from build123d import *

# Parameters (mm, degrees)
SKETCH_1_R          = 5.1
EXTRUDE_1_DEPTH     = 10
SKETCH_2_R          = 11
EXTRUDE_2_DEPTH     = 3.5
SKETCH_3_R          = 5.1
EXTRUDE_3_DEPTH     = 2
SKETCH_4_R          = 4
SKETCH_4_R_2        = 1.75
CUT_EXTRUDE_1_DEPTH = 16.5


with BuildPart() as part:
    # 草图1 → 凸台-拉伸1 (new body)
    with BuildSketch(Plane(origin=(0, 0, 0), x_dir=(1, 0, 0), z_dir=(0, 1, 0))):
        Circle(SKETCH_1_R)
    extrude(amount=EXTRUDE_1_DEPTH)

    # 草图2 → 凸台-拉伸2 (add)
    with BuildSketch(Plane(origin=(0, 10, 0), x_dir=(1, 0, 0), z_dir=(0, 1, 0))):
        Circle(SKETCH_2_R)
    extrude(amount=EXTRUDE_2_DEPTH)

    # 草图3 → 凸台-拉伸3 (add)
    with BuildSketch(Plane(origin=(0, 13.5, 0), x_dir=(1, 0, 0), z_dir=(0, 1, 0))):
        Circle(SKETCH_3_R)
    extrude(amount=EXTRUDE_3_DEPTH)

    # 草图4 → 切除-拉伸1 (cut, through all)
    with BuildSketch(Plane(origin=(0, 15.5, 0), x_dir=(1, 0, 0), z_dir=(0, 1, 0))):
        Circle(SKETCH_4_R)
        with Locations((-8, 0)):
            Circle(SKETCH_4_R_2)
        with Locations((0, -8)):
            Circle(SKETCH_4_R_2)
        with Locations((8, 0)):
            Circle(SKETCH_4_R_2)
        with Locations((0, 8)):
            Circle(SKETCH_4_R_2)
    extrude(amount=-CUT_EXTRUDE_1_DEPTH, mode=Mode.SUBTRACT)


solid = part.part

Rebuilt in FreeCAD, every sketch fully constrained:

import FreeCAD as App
import Part
import Sketcher

doc = App.newDocument("Part")
body = doc.addObject("PartDesign::Body", "Body")

# Sketch on XZ plane
sketch1 = body.newObject("Sketcher::SketchObject", "Sketch")
sketch1.AttachmentSupport = (doc.getObject("XZ_Plane"), [""])
sketch1.MapMode = "FlatFace"
sketch1.addGeometry(Part.Circle(App.Vector(0, 0, 0), App.Vector(0, 0, 1), 5), False)
sketch1.addConstraint(Sketcher.Constraint("Coincident", 0, 3, -1, 1))
sketch1.addConstraint(Sketcher.Constraint("Diameter", 0, 10.2))
pad1 = body.newObject("PartDesign::Pad", "Pad")
pad1.Profile = sketch1
pad1.Length = 10
pad1.Reversed = True

# Sketch on XZ plane
sketch2 = body.newObject("Sketcher::SketchObject", "Sketch001")
sketch2.AttachmentSupport = (doc.getObject("XZ_Plane"), [""])
sketch2.MapMode = "FlatFace"
sketch2.AttachmentOffset = App.Placement(App.Vector(0, 0, -10), App.Rotation())
sketch2.addGeometry(Part.Circle(App.Vector(0, 0, 0), App.Vector(0, 0, 1), 11), False)
sketch2.addConstraint(Sketcher.Constraint("Coincident", 0, 3, -1, 1))
sketch2.addConstraint(Sketcher.Constraint("Diameter", 0, 22.0))
pad2 = body.newObject("PartDesign::Pad", "Pad001")
pad2.Profile = sketch2
pad2.Length = 3.5
pad2.Reversed = True

# Sketch on XZ plane
sketch3 = body.newObject("Sketcher::SketchObject", "Sketch002")
sketch3.AttachmentSupport = (doc.getObject("XZ_Plane"), [""])
sketch3.MapMode = "FlatFace"
sketch3.AttachmentOffset = App.Placement(App.Vector(0, 0, -13.5), App.Rotation())
sketch3.addGeometry(Part.Circle(App.Vector(0, 0, 0), App.Vector(0, 0, 1), 5), False)
sketch3.addConstraint(Sketcher.Constraint("Coincident", 0, 3, -1, 1))
sketch3.addConstraint(Sketcher.Constraint("Diameter", 0, 10.2))
pad3 = body.newObject("PartDesign::Pad", "Pad002")
pad3.Profile = sketch3
pad3.Length = 2
pad3.Reversed = True

# Sketch on XZ plane
sketch4 = body.newObject("Sketcher::SketchObject", "Sketch003")
sketch4.AttachmentSupport = (doc.getObject("XZ_Plane"), [""])
sketch4.MapMode = "FlatFace"
sketch4.AttachmentOffset = App.Placement(App.Vector(0, 0, -15.5), App.Rotation())
sketch4.addGeometry(Part.Circle(App.Vector(0, 0, 0), App.Vector(0, 0, 1), 4), False)
sketch4.addGeometry(Part.Circle(App.Vector(-8, 0, 0), App.Vector(0, 0, 1), 1.8), False)
sketch4.addGeometry(Part.Circle(App.Vector(0, 8, 0), App.Vector(0, 0, 1), 1.8), False)
sketch4.addGeometry(Part.Circle(App.Vector(8, 0, 0), App.Vector(0, 0, 1), 1.8), False)
sketch4.addGeometry(Part.Circle(App.Vector(0, -8, 0), App.Vector(0, 0, 1), 1.8), False)
sketch4.addConstraint(Sketcher.Constraint("Coincident", 0, 3, -1, 1))
sketch4.addConstraint(Sketcher.Constraint("Equal", 1, 2))
sketch4.addConstraint(Sketcher.Constraint("Equal", 2, 3))
sketch4.addConstraint(Sketcher.Constraint("Equal", 3, 4))
sketch4.addConstraint(Sketcher.Constraint("Symmetric", 1, 3, 3, 3, -1, 1))
sketch4.addConstraint(Sketcher.Constraint("Symmetric", 2, 3, 4, 3, -1, 1))
sketch4.addConstraint(Sketcher.Constraint("PointOnObject", 1, 3, -1))
sketch4.addConstraint(Sketcher.Constraint("PointOnObject", 2, 3, -2))
sketch4.addConstraint(Sketcher.Constraint("Diameter", 0, 8.0))
sketch4.addConstraint(Sketcher.Constraint("Diameter", 1, 3.5))
sketch4.addConstraint(Sketcher.Constraint("DistanceX", 1, 3, -1, 1, 8.0))
sketch4.addConstraint(Sketcher.Constraint("DistanceY", -1, 1, 2, 3, 8.0))
pocket1 = body.newObject("PartDesign::Pocket", "Pocket")
pocket1.Profile = sketch4
pocket1.Type = "ThroughAll"
pocket1.Reversed = True

doc.recompute()
